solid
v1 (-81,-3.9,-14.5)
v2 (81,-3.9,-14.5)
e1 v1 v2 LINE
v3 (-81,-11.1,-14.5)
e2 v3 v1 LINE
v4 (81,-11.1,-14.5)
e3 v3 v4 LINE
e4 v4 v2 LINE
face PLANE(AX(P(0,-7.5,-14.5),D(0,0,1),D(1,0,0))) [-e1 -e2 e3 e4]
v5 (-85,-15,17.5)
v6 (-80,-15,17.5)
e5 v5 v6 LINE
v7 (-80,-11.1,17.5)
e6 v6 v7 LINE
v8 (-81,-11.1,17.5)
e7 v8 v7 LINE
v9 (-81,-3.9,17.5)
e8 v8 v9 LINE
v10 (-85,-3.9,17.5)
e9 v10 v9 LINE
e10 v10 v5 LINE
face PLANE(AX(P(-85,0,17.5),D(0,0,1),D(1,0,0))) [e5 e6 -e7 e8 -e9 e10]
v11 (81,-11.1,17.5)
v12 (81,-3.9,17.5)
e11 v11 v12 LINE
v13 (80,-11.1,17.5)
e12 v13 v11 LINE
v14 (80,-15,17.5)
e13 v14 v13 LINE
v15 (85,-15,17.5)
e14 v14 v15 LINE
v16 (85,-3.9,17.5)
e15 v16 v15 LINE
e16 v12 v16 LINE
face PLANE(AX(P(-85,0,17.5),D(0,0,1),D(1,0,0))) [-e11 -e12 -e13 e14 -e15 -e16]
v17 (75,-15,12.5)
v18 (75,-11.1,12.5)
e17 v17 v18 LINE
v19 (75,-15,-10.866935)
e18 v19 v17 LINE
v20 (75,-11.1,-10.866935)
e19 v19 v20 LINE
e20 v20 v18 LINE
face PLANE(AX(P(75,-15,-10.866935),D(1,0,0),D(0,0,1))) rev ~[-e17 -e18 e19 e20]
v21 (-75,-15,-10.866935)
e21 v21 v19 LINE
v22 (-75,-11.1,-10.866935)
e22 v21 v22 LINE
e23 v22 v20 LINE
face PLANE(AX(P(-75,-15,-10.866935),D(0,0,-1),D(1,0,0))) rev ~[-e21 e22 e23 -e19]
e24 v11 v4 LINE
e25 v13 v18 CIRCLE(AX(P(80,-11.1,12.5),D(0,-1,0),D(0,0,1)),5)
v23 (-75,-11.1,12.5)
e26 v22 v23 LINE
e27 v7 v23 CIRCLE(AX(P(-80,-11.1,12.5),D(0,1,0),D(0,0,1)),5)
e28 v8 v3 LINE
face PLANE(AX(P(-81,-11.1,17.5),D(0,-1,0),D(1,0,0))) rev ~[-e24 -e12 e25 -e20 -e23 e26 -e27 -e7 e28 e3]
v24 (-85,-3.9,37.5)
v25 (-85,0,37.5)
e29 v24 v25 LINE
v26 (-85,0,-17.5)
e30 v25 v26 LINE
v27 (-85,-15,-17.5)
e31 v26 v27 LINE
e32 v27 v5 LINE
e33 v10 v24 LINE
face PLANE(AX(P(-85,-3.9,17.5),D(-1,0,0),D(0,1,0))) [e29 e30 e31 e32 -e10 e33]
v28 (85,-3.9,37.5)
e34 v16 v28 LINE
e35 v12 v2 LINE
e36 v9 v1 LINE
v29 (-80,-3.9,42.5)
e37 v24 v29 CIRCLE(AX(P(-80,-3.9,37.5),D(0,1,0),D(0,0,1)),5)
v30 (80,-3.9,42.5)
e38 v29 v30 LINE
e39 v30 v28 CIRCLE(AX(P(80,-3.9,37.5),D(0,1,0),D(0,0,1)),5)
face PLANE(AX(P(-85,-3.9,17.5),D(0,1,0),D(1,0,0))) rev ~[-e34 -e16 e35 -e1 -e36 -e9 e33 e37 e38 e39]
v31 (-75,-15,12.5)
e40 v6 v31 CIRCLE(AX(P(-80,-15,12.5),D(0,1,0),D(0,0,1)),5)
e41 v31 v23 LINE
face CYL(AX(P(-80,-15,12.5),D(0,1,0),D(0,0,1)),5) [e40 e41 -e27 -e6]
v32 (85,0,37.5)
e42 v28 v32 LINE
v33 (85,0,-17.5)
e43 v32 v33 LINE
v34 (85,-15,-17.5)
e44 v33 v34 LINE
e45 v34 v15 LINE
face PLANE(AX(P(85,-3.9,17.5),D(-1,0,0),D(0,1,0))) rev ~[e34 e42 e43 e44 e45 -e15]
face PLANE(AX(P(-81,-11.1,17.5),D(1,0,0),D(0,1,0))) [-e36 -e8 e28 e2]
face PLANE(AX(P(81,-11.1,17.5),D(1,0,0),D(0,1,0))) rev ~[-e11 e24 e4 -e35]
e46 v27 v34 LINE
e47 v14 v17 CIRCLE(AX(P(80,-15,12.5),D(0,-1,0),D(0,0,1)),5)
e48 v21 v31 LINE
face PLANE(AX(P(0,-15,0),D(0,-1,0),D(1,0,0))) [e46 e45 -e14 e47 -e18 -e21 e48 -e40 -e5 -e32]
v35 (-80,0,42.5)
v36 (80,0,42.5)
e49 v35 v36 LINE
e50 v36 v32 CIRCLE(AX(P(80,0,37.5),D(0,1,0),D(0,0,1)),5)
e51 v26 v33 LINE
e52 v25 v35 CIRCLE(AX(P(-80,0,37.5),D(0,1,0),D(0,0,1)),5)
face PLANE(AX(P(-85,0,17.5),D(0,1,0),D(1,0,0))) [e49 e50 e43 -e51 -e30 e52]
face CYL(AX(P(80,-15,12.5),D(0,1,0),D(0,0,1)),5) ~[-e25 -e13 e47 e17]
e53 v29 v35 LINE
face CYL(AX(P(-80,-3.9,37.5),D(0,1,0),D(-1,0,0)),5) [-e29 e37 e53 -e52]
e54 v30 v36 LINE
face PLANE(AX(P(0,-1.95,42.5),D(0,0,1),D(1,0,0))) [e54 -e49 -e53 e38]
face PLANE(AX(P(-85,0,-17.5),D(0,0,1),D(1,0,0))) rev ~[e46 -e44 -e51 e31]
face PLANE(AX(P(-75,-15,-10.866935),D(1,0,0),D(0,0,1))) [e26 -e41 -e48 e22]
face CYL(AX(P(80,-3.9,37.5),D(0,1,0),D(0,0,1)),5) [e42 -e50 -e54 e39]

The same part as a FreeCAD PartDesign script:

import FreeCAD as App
import Part
import Sketcher
from FreeCAD import Vector


def edges_at(feature, points):
    """Names of the edges that pass closest to the given points."""
    edges = feature.Shape.Edges
    near = lambda p: min(range(len(edges)), key=lambda i: edges[i].distToShape(Part.Vertex(*p))[0])
    return sorted({f"Edge{near(p) + 1}" for p in points})


def add_polygon(sketch, points):
    """Adds a closed chain of lines whose ends are joined by coincident constraints."""
    first, n = sketch.GeometryCount, len(points)
    for a, b in zip(points, points[1:] + points[:1]):
        sketch.addGeometry(Part.LineSegment(App.Vector(*a, 0), App.Vector(*b, 0)), False)
    for i in range(n):
        sketch.addConstraint(Sketcher.Constraint("Coincident", first + i, 2, first + (i + 1) % n, 1))

doc = App.newDocument("Part")
body = doc.addObject("PartDesign::Body", "Body")

sketch1 = doc.addObject("Sketcher::SketchObject", "Sketch")
body.addObject(sketch1)
sketch1.AttachmentSupport = (doc.XZ_Plane, [""])
sketch1.MapMode = "FlatFace"
add_polygon(sketch1, [(-85, 18), (-85, -18), (85, -18), (85, 18)])
sketch1.addConstraint([
    Sketcher.Constraint("Vertical", 0),
    Sketcher.Constraint("Horizontal", 1),
    Sketcher.Constraint("Vertical", 2),
    Sketcher.Constraint("Horizontal", 3),
    Sketcher.Constraint("Symmetric", 0, 2, 2, 2, -1, 1),
    Sketcher.Constraint("DistanceX", 1, 1, 1, 2, 170.0),
    Sketcher.Constraint("DistanceY", 0, 2, 0, 1, 35.0),
])
pad1 = doc.addObject("PartDesign::Pad", "Pad")
body.addObject(pad1)
pad1.Profile = sketch1
pad1.Length = 15

sketch2 = doc.addObject("Sketcher::SketchObject", "Sketch001")
body.addObject(sketch2)
sketch2.AttachmentSupport = (doc.XY_Plane, [""])
sketch2.MapMode = "FlatFace"
sketch2.AttachmentOffset = App.Placement(Vector(0, 0, 17.5), App.Rotation())
add_polygon(sketch2, [(-81, -4), (-81, -11), (81, -11), (81, -4)])
sketch2.addConstraint([
    Sketcher.Constraint("Vertical", 0),
    Sketcher.Constraint("Horizontal", 1),
    Sketcher.Constraint("Vertical", 2),
    Sketcher.Constraint("Horizontal", 3),
    Sketcher.Constraint("DistanceX", 1, 1, 1, 2, 162.0),
    Sketcher.Constraint("DistanceY", 0, 2, 0, 1, 7.2),
    Sketcher.Constraint("DistanceX", 0, 2, -1, 1, 81.0),
    Sketcher.Constraint("DistanceY", 0, 2, -1, 1, 11.1),
])
pocket1 = doc.addObject("PartDesign::Pocket", "Pocket")
body.addObject(pocket1)
pocket1.Profile = sketch2
pocket1.Length = 32

sketch3 = doc.addObject("Sketcher::SketchObject", "Sketch002")
body.addObject(sketch3)
sketch3.AttachmentSupport = (doc.XY_Plane, [""])
sketch3.MapMode = "FlatFace"
sketch3.AttachmentOffset = App.Placement(Vector(0, 0, 17.5), App.Rotation())
add_polygon(sketch3, [(-85, 0), (-85, -3.9), (85, -3.9), (85, 0)])
sketch3.addConstraint([
    Sketcher.Constraint("Vertical", 0),
    Sketcher.Constraint("Horizontal", 1),
    Sketcher.Constraint("Vertical", 2),
    Sketcher.Constraint("Horizontal", 3),
    Sketcher.Constraint("Symmetric", 2, 2, 3, 2, -1, 1),
    Sketcher.Constraint("DistanceX", 1, 1, 1, 2, 170.0),
    Sketcher.Constraint("DistanceY", 0, 2, 0, 1, 3.9),
])
pad2 = doc.addObject("PartDesign::Pad", "Pad001")
body.addObject(pad2)
pad2.Profile = sketch3
pad2.Length = 25

sketch4 = doc.addObject("Sketcher::SketchObject", "Sketch003")
body.addObject(sketch4)
sketch4.AttachmentSupport = (doc.XZ_Plane, [""])
sketch4.MapMode = "FlatFace"
sketch4.AttachmentOffset = App.Placement(Vector(0, 0, 15), App.Rotation())
add_polygon(sketch4, [(-75, 18), (-75, -11), (75, -11), (75, 18)])
sketch4.addConstraint([
    Sketcher.Constraint("Vertical", 0),
    Sketcher.Constraint("Horizontal", 1),
    Sketcher.Constraint("Vertical", 2),
    Sketcher.Constraint("Horizontal", 3),
    Sketcher.Constraint("DistanceX", 1, 1, 1, 2, 150.0),
    Sketcher.Constraint("DistanceX", 0, 2, -1, 1, 75.0),
    Sketcher.Constraint("DistanceY", -1, 1, 2, 2, 17.5),
    Sketcher.Constraint("DistanceY", 0, 2, 0, 1, 28.366935),
])
pocket2 = doc.addObject("PartDesign::Pocket", "Pocket001")
body.addObject(pocket2)
pocket2.Profile = sketch4
pocket2.Length = 6.3
doc.recompute()

fillet = doc.addObject("PartDesign::Fillet", "Fillet")
body.addObject(fillet)
fillet.Base = (pocket2, edges_at(pocket2, [
    (-85, -1.95, 42.5),
    (85, -1.95, 42.5),
    (75, -13.05, 17.5),
    (-75, -13.05, 17.5),
]))
fillet.Radius = 5

doc.recompute()
